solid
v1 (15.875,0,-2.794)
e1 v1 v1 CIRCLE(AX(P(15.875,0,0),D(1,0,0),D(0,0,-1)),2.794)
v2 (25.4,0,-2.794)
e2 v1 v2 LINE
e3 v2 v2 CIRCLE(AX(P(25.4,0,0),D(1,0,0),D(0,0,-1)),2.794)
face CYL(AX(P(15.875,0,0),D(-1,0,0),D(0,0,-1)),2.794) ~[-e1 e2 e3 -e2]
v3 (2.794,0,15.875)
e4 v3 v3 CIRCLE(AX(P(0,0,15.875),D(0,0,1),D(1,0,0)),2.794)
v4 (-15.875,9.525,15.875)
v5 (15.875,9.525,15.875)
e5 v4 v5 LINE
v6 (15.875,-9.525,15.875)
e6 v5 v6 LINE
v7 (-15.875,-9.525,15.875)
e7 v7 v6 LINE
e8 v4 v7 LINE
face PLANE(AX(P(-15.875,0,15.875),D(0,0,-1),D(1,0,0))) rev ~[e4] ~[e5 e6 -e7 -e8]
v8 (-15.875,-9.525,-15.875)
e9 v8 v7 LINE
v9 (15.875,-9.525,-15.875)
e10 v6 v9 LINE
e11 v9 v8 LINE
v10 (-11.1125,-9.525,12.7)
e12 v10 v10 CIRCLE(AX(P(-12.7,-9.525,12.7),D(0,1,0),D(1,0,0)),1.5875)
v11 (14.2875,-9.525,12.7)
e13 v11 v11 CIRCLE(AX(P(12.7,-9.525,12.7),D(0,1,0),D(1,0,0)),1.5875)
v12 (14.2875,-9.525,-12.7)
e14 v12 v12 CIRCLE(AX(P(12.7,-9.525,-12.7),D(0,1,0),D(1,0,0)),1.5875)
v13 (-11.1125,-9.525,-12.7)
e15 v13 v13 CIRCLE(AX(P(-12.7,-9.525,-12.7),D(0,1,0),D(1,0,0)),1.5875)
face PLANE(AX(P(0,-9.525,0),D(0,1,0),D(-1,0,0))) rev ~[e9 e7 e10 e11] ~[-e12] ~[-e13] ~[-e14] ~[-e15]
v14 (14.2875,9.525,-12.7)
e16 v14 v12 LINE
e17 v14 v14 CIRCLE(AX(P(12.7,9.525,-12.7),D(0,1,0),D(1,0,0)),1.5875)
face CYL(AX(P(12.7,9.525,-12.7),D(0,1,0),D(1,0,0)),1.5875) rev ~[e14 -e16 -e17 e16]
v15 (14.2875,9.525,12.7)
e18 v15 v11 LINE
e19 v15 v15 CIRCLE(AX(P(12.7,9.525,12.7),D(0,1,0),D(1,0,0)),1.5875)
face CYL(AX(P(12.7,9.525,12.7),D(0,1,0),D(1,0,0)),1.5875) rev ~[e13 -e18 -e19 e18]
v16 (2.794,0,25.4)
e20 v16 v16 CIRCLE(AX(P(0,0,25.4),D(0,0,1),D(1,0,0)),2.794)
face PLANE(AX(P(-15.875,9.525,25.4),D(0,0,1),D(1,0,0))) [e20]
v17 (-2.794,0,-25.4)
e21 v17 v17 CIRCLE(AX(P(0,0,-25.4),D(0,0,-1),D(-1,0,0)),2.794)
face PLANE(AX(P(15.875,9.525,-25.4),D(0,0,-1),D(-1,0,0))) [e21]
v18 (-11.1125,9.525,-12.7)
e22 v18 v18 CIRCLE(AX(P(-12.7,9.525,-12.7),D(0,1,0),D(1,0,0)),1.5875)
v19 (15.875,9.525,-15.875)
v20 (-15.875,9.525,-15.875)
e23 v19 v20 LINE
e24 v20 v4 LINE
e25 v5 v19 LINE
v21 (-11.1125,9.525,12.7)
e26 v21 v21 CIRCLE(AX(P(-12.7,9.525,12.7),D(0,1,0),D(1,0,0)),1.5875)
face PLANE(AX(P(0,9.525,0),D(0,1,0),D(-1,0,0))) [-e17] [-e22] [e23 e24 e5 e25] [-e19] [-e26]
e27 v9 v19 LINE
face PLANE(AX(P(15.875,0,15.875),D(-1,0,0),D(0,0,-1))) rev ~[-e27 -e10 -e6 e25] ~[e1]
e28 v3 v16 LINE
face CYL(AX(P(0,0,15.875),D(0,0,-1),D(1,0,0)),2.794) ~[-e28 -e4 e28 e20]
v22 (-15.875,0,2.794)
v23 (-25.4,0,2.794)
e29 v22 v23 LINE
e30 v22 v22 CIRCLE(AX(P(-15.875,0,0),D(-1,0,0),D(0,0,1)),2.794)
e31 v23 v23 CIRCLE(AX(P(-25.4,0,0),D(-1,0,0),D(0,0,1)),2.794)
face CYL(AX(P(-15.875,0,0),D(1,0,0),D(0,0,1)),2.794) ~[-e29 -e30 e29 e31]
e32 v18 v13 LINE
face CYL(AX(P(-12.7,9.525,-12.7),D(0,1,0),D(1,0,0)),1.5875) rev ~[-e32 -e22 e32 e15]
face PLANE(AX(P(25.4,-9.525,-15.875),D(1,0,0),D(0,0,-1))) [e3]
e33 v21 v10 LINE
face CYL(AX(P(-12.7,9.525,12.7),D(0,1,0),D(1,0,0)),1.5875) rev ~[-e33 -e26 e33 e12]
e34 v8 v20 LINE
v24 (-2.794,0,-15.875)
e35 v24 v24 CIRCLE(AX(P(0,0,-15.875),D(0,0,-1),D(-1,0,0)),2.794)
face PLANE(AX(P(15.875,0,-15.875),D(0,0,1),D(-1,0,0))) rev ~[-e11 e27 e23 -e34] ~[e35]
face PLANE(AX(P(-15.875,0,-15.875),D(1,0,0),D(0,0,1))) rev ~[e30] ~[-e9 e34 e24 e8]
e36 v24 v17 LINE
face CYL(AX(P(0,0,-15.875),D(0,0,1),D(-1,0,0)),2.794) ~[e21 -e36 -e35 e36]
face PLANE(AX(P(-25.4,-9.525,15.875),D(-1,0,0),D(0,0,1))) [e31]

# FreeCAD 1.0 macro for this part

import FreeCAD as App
import Part
import Sketcher
from FreeCAD import Vector
Q = App.Units.Quantity

doc = App.newDocument("Part")
body = doc.addObject("PartDesign::Body", "Body")

sketch1 = body.newObject("Sketcher::SketchObject", "Sketch")
sketch1.AttachmentSupport = (doc.getObject("XZ_Plane"), [""])
sketch1.MapMode = "FlatFace"
sketch1.addGeometry(Part.LineSegment(Vector(16, 16, 0), Vector(16, -16, 0)), False)
sketch1.addGeometry(Part.LineSegment(Vector(16, -16, 0), Vector(-16, -16, 0)), False)
sketch1.addGeometry(Part.LineSegment(Vector(-16, -16, 0), Vector(-16, 16, 0)), False)
sketch1.addGeometry(Part.LineSegment(Vector(-16, 16, 0), Vector(16, 16, 0)), False)
sketch1.addConstraint(Sketcher.Constraint("Coincident", 0, 2, 1, 1))
sketch1.addConstraint(Sketcher.Constraint("Coincident", 1, 2, 2, 1))
sketch1.addConstraint(Sketcher.Constraint("Coincident", 2, 2, 3, 1))
sketch1.addConstraint(Sketcher.Constraint("Coincident", 3, 2, 0, 1))
sketch1.addConstraint(Sketcher.Constraint("Vertical", 0))
sketch1.addConstraint(Sketcher.Constraint("Horizontal", 1))
sketch1.addConstraint(Sketcher.Constraint("Vertical", 2))
sketch1.addConstraint(Sketcher.Constraint("Horizontal", 3))
sketch1.addConstraint(Sketcher.Constraint("Symmetric", 0, 2, 2, 2, -1, 1))
sketch1.addConstraint(Sketcher.Constraint("Equal", 3, 0))
sketch1.addConstraint(Sketcher.Constraint("DistanceX", 1, 2, 1, 1, Q("1.25 in")))
pad1 = body.newObject("PartDesign::Pad", "Pad")
pad1.Profile = sketch1
pad1.Length = Q("0.75 in")
pad1.Midplane = True

sketch2 = body.newObject("Sketcher::SketchObject", "Sketch001")
sketch2.AttachmentSupport = (doc.getObject("XZ_Plane"), [""])
sketch2.MapMode = "FlatFace"
sketch2.AttachmentOffset = App.Placement(Vector(0, 0, -0.375 * 25.4), App.Rotation())
sketch2.addGeometry(Part.Circle(Vector(-12.7, 12.7, 0), Vector(0, 0, 1), 1.6), False)
sketch2.addGeometry(Part.Circle(Vector(-12.7, -12.7, 0), Vector(0, 0, 1), 1.6), False)
sketch2.addGeometry(Part.Circle(Vector(12.7, 12.7, 0), Vector(0, 0, 1), 1.6), False)
sketch2.addGeometry(Part.Circle(Vector(12.7, -12.7, 0), Vector(0, 0, 1), 1.6), False)
sketch2.addConstraint(Sketcher.Constraint("Equal", 0, 1))
sketch2.addConstraint(Sketcher.Constraint("Equal", 1, 2))
sketch2.addConstraint(Sketcher.Constraint("Equal", 2, 3))
sketch2.addConstraint(Sketcher.Constraint("Symmetric", 1, 3, 2, 3, -1, 1))
sketch2.addConstraint(Sketcher.Constraint("Symmetric", 0, 3, 3, 3, -1, 1))
sketch2.addConstraint(Sketcher.Constraint("Symmetric", 0, 3, 2, 3, -2))
sketch2.addConstraint(Sketcher.Constraint("Diameter", 0, Q("0.125 in")))
sketch2.addConstraint(Sketcher.Constraint("DistanceY", 1, 3, 0, 3, Q("1 in")))
sketch2.addConstraint(Sketcher.Constraint("DistanceX", 0, 3, 2, 3, Q("1 in")))
pocket1 = body.newObject("PartDesign::Pocket", "Pocket")
pocket1.Profile = sketch2
pocket1.Type = "ThroughAll"
pocket1.Reversed = True

sketch3 = body.newObject("Sketcher::SketchObject", "Sketch002")
sketch3.AttachmentSupport = (doc.getObject("YZ_Plane"), [""])
sketch3.MapMode = "FlatFace"
sketch3.AttachmentOffset = App.Placement(Vector(0, 0, -0.625 * 25.4), App.Rotation())
sketch3.addGeometry(Part.Circle(Vector(0, 0, 0), Vector(0, 0, 1), 2.8), False)
sketch3.addConstraint(Sketcher.Constraint("Coincident", 0, 3, -1, 1))
sketch3.addConstraint(Sketcher.Constraint("Diameter", 0, Q("0.22 in")))
pad2 = body.newObject("PartDesign::Pad", "Pad001")
pad2.Profile = sketch3
pad2.Length = Q("0.375 in")
pad2.Reversed = True

sketch4 = body.newObject("Sketcher::SketchObject", "Sketch003")
sketch4.AttachmentSupport = (doc.getObject("XY_Plane"), [""])
sketch4.MapMode = "FlatFace"
sketch4.AttachmentOffset = App.Placement(Vector(0, 0, -0.625 * 25.4), App.Rotation())
sketch4.addGeometry(Part.Circle(Vector(0, 0, 0), Vector(0, 0, 1), 2.8), False)
sketch4.addConstraint(Sketcher.Constraint("Coincident", 0, 3, -1, 1))
sketch4.addConstraint(Sketcher.Constraint("Diameter", 0, Q("0.22 in")))
pad3 = body.newObject("PartDesign::Pad", "Pad002")
pad3.Profile = sketch4
pad3.Length = Q("0.375 in")
pad3.Reversed = True

sketch5 = body.newObject("Sketcher::SketchObject", "Sketch004")
sketch5.AttachmentSupport = (doc.getObject("YZ_Plane"), [""])
sketch5.MapMode = "FlatFace"
sketch5.AttachmentOffset = App.Placement(Vector(0, 0, 0.625 * 25.4), App.Rotation())
sketch5.addGeometry(Part.Circle(Vector(0, 0, 0), Vector(0, 0, 1), 2.8), False)
sketch5.addConstraint(Sketcher.Constraint("Coincident", 0, 3, -1, 1))
sketch5.addConstraint(Sketcher.Constraint("Diameter", 0, Q("0.22 in")))
pad4 = body.newObject("PartDesign::Pad", "Pad003")
pad4.Profile = sketch5
pad4.Length = Q("0.375 in")

sketch6 = body.newObject("Sketcher::SketchObject", "Sketch005")
sketch6.AttachmentSupport = (doc.getObject("XY_Plane"), [""])
sketch6.MapMode = "FlatFace"
sketch6.AttachmentOffset = App.Placement(Vector(0, 0, 0.625 * 25.4), App.Rotation())
sketch6.addGeometry(Part.Circle(Vector(0, 0, 0), Vector(0, 0, 1), 2.8), False)
sketch6.addConstraint(Sketcher.Constraint("Coincident", 0, 3, -1, 1))
sketch6.addConstraint(Sketcher.Constraint("Diameter", 0, Q("0.22 in")))
pad5 = body.newObject("PartDesign::Pad", "Pad004")
pad5.Profile = sketch6
pad5.Length = Q("0.375 in")

doc.recompute()
